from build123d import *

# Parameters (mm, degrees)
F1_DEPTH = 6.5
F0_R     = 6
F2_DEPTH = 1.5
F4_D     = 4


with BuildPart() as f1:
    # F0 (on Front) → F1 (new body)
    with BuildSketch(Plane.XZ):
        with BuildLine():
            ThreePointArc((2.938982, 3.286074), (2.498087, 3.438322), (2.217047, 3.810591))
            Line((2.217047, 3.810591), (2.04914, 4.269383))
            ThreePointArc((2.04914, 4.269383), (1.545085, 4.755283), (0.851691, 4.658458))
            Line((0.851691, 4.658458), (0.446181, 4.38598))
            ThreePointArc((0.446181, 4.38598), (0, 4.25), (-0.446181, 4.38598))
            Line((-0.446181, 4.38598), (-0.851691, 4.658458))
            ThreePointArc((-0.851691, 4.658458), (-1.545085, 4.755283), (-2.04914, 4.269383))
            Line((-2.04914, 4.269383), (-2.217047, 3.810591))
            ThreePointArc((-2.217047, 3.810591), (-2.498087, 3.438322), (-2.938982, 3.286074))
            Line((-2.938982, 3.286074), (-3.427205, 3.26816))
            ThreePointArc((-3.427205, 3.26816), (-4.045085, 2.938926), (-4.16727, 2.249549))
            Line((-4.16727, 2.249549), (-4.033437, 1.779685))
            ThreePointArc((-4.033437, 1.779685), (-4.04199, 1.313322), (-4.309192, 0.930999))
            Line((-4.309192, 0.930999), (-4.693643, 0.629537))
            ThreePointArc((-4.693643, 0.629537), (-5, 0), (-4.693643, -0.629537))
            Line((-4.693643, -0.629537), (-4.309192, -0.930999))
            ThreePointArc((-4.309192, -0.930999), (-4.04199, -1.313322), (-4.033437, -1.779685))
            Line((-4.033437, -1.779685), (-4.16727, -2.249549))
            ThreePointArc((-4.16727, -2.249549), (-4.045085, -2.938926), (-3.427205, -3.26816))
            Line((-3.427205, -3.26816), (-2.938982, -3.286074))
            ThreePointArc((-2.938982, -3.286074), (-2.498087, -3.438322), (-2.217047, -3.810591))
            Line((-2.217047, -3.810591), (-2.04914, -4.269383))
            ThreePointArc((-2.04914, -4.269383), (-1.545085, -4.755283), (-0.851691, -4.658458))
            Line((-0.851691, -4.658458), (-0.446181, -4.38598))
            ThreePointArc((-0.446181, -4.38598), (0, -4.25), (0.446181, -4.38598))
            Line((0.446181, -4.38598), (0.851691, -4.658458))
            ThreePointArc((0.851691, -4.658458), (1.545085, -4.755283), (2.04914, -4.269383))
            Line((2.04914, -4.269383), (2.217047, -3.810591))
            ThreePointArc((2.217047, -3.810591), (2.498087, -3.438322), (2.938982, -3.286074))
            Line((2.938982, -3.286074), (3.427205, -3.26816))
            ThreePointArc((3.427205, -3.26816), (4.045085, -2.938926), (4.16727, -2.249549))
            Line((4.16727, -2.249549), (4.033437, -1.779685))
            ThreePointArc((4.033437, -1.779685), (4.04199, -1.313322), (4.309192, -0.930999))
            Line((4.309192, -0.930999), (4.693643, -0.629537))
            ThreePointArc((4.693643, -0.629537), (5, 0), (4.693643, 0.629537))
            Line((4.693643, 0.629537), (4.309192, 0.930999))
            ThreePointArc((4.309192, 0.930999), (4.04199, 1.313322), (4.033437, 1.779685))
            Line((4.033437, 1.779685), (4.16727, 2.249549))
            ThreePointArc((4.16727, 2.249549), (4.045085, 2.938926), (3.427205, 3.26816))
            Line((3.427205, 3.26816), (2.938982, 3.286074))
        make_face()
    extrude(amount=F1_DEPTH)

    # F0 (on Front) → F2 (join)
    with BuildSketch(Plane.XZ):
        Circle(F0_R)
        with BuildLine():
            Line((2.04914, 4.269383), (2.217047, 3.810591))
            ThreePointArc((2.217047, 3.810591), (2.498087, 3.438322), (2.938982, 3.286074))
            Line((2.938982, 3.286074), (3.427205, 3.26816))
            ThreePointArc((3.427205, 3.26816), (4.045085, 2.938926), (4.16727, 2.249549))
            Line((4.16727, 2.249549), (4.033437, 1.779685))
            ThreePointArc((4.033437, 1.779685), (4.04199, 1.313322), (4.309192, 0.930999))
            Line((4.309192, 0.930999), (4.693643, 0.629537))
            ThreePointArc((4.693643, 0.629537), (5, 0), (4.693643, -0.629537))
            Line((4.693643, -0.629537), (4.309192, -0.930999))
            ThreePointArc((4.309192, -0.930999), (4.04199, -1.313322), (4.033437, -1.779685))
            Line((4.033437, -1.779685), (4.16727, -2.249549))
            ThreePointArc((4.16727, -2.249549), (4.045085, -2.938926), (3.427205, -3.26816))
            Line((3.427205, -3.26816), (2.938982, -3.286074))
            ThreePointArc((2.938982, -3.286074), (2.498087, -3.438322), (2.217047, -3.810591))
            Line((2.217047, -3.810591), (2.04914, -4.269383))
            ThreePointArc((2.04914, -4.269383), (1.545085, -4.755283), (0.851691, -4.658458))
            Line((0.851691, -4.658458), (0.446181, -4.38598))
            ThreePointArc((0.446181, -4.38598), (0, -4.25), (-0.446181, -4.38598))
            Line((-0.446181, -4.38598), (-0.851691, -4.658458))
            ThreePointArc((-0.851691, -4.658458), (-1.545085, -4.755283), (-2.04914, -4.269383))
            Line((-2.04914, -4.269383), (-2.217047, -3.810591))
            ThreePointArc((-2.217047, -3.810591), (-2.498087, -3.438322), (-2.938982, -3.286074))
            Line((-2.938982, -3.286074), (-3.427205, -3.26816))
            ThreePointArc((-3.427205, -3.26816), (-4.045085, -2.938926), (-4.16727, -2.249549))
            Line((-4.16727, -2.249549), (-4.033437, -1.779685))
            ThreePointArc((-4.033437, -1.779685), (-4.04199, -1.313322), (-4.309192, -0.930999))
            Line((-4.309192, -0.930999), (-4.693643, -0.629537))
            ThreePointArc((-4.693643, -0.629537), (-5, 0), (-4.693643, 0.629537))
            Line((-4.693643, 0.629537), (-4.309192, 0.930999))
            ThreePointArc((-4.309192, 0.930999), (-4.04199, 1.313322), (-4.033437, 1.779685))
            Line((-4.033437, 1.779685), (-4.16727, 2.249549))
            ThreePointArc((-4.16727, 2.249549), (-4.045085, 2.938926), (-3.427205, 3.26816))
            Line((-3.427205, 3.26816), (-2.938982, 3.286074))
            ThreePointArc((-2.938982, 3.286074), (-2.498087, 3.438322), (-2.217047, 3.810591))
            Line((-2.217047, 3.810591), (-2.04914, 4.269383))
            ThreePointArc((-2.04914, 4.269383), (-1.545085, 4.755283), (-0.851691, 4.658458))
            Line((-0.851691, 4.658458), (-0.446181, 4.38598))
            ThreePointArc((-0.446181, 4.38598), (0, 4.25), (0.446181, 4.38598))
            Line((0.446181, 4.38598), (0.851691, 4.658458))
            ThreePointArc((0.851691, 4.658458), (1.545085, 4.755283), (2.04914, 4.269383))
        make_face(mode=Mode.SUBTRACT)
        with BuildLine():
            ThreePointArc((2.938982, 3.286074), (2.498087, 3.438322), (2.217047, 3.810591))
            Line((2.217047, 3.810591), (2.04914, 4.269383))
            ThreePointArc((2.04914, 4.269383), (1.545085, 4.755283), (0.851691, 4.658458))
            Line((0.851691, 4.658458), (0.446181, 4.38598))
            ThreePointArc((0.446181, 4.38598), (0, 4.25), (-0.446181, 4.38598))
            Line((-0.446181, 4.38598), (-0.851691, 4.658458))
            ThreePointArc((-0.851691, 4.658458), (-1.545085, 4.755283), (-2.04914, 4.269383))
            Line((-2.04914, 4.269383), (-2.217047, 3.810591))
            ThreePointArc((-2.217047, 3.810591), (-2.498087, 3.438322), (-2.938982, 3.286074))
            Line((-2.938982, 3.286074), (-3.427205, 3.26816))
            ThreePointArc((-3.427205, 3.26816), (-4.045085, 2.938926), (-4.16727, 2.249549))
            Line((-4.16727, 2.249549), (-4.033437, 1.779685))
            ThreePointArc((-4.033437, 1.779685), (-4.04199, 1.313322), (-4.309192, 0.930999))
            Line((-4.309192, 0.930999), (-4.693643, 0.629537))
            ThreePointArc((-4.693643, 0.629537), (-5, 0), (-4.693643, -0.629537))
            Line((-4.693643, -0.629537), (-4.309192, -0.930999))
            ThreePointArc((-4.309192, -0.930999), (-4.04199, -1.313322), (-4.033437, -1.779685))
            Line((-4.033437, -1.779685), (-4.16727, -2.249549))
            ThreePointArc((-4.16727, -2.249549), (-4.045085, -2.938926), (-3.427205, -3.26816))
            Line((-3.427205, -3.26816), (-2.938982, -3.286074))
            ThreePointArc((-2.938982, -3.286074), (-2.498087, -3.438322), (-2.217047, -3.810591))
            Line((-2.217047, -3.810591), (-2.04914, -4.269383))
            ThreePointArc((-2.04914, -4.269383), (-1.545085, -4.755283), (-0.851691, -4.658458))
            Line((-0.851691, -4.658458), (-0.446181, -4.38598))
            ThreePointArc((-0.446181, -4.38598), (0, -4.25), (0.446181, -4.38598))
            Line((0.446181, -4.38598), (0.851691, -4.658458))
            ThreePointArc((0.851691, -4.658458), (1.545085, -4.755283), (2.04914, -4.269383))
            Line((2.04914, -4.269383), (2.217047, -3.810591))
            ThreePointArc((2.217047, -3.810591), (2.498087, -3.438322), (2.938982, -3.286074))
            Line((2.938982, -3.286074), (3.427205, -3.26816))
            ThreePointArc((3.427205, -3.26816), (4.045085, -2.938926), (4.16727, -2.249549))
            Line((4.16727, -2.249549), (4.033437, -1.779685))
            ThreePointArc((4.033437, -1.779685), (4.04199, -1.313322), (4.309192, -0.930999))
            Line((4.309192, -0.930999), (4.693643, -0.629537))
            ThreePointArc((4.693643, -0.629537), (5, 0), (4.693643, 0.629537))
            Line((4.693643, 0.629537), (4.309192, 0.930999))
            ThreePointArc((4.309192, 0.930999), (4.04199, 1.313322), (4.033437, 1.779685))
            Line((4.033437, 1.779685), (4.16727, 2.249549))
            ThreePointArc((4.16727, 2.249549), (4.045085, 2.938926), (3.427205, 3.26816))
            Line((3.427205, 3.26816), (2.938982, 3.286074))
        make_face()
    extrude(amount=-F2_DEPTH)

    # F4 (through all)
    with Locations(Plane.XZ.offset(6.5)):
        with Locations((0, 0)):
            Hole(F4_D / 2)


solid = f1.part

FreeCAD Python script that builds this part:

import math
import FreeCAD as App
import Part
import Sketcher
from FreeCAD import Vector

doc = App.newDocument("Part")
params = doc.addObject("Spreadsheet::Sheet", "Params")
for row, (alias, value) in enumerate([
    ("sketch1_radius", "0.799999 mm"),
    ("sketch1_radius2", "0.8 mm"),
    ("sketch1_radius3", "0.799999 mm"),
    ("sketch1_radius4", "0.800001 mm"),
    ("sketch1_radius5", "0.8 mm"),
    ("pad1_length", "6.5 mm"),
    ("sketch2_diameter", "12 mm"),
    ("pad2_length", "1.5 mm"),
    ("sketch3_diameter", "4 mm"),
    ("hole_diameter", "4 mm"),
], start=1):
    params.set(f"A{row}", alias)
    params.set(f"B{row}", "=" + value)
    params.setAlias(f"B{row}", alias)

body = doc.addObject("PartDesign::Body", "Body")

sketch1 = doc.addObject("Sketcher::SketchObject", "Sketch")
body.addObject(sketch1)
sketch1.AttachmentSupport = (doc.XZ_Plane, [""])
sketch1.MapMode = "FlatFace"
sketch1.addGeometry(Part.ArcOfCircle(Part.Circle(Vector(2.968313, 4.085532, 0), Vector(0, 0, 1), 0.799996), math.radians(-159.898885), math.radians(-92.101169)), False)
sketch1.addGeometry(Part.LineSegment(Vector(2.217047, 3.810591, 0), Vector(2.04914, 4.269383, 0)), False)
sketch1.addGeometry(Part.ArcOfCircle(Part.Circle(Vector(1.297871, 3.994438, 0), Vector(0, 0, 1), 0.799999), math.radians(20.101296), math.radians(123.898684)), False)
sketch1.addGeometry(Part.LineSegment(Vector(0.851691, 4.658458, 0), Vector(0.446181, 4.38598, 0)), False)
sketch1.addGeometry(Part.ArcOfCircle(Part.Circle(Vector(0, 5.05, 0), Vector(0, 0, 1), 0.8), math.radians(-123.89869), math.radians(-56.10131)), False)
sketch1.addGeometry(Part.LineSegment(Vector(-0.446181, 4.38598, 0), Vector(-0.851691, 4.658458, 0)), False)
sketch1.addGeometry(Part.ArcOfCircle(Part.Circle(Vector(-1.297871, 3.994438, 0), Vector(0, 0, 1), 0.799999), math.radians(56.101316), math.radians(159.898704)), False)
sketch1.addGeometry(Part.LineSegment(Vector(-2.04914, 4.269383, 0), Vector(-2.217047, 3.810591, 0)), False)
sketch1.addGeometry(Part.ArcOfCircle(Part.Circle(Vector(-2.968313, 4.085532, 0), Vector(0, 0, 1), 0.799996), math.radians(-87.898831), math.radians(-20.101115)), False)
sketch1.addGeometry(Part.LineSegment(Vector(-2.938982, 3.286074, 0), Vector(-3.427205, 3.26816, 0)), False)
sketch1.addGeometry(Part.ArcOfCircle(Part.Circle(Vector(-3.397871, 2.468697, 0), Vector(0, 0, 1), 0.800001), math.radians(92.101363), math.radians(195.898579)), False)
sketch1.addGeometry(Part.LineSegment(Vector(-4.16727, 2.249549, 0), Vector(-4.033437, 1.779685, 0)), False)
sketch1.addGeometry(Part.ArcOfCircle(Part.Circle(Vector(-4.802835, 1.560536, 0), Vector(0, 0, 1), 0.8), math.radians(-51.89868), math.radians(15.898655)), False)
sketch1.addGeometry(Part.LineSegment(Vector(-4.309192, 0.930999, 0), Vector(-4.693643, 0.629537, 0)), False)
sketch1.addGeometry(Part.ArcOfCircle(Part.Circle(Vector(-4.2, 0, 0), Vector(0, 0, 1), 0.8), math.radians(128.101315), math.radians(231.898685)), False)
sketch1.addGeometry(Part.LineSegment(Vector(-4.693643, -0.629537, 0), Vector(-4.309192, -0.930999, 0)), False)
sketch1.addGeometry(Part.ArcOfCircle(Part.Circle(Vector(-4.802835, -1.560536, 0), Vector(0, 0, 1), 0.8), math.radians(-15.898655), math.radians(51.89868)), False)
sketch1.addGeometry(Part.LineSegment(Vector(-4.033437, -1.779685, 0), Vector(-4.16727, -2.249549, 0)), False)
sketch1.addGeometry(Part.ArcOfCircle(Part.Circle(Vector(-3.397871, -2.468697, 0), Vector(0, 0, 1), 0.800001), math.radians(164.101421), math.radians(267.898637)), False)
sketch1.addGeometry(Part.LineSegment(Vector(-3.427205, -3.26816, 0), Vector(-2.938982, -3.286074, 0)), False)
sketch1.addGeometry(Part.ArcOfCircle(Part.Circle(Vector(-2.968313, -4.085532, 0), Vector(0, 0, 1), 0.799996), math.radians(20.101115), math.radians(87.898831)), False)
sketch1.addGeometry(Part.LineSegment(Vector(-2.217047, -3.810591, 0), Vector(-2.04914, -4.269383, 0)), False)
sketch1.addGeometry(Part.ArcOfCircle(Part.Circle(Vector(-1.297871, -3.994438, 0), Vector(0, 0, 1), 0.799999), math.radians(-159.898704), math.radians(-56.101316)), False)
sketch1.addGeometry(Part.LineSegment(Vector(-0.851691, -4.658458, 0), Vector(-0.446181, -4.38598, 0)), False)
sketch1.addGeometry(Part.ArcOfCircle(Part.Circle(Vector(0, -5.05, 0), Vector(0, 0, 1), 0.8), math.radians(56.10131), math.radians(123.89869)), False)
sketch1.addGeometry(Part.LineSegment(Vector(0.446181, -4.38598, 0), Vector(0.851691, -4.658458, 0)), False)
sketch1.addGeometry(Part.ArcOfCircle(Part.Circle(Vector(1.297871, -3.994438, 0), Vector(0, 0, 1), 0.799999), math.radians(-123.898684), math.radians(-20.101296)), False)
sketch1.addGeometry(Part.LineSegment(Vector(2.04914, -4.269383, 0), Vector(2.217047, -3.810591, 0)), False)
sketch1.addGeometry(Part.ArcOfCircle(Part.Circle(Vector(2.968313, -4.085532, 0), Vector(0, 0, 1), 0.799996), math.radians(92.101169), math.radians(159.898885)), False)
sketch1.addGeometry(Part.LineSegment(Vector(2.938982, -3.286074, 0), Vector(3.427205, -3.26816, 0)), False)
sketch1.addGeometry(Part.ArcOfCircle(Part.Circle(Vector(3.397871, -2.468697, 0), Vector(0, 0, 1), 0.800001), math.radians(-87.898637), math.radians(15.898579)), False)
sketch1.addGeometry(Part.LineSegment(Vector(4.16727, -2.249549, 0), Vector(4.033437, -1.779685, 0)), False)
sketch1.addGeometry(Part.ArcOfCircle(Part.Circle(Vector(4.802835, -1.560536, 0), Vector(0, 0, 1), 0.8), math.radians(128.10132), math.radians(195.898655)), False)
sketch1.addGeometry(Part.LineSegment(Vector(4.309192, -0.930999, 0), Vector(4.693643, -0.629537, 0)), False)
sketch1.addGeometry(Part.ArcOfCircle(Part.Circle(Vector(4.2, 0, 0), Vector(0, 0, 1), 0.8), math.radians(-51.898685), math.radians(51.898685)), False)
sketch1.addGeometry(Part.LineSegment(Vector(4.693643, 0.629537, 0), Vector(4.309192, 0.930999, 0)), False)
sketch1.addGeometry(Part.ArcOfCircle(Part.Circle(Vector(4.802835, 1.560536, 0), Vector(0, 0, 1), 0.8), math.radians(164.101345), math.radians(231.89868)), False)
sketch1.addGeometry(Part.LineSegment(Vector(4.033437, 1.779685, 0), Vector(4.16727, 2.249549, 0)), False)
sketch1.addGeometry(Part.ArcOfCircle(Part.Circle(Vector(3.397871, 2.468697, 0), Vector(0, 0, 1), 0.800001), math.radians(-15.898579), math.radians(87.898637)), False)
sketch1.addGeometry(Part.LineSegment(Vector(3.427205, 3.26816, 0), Vector(2.938982, 3.286074, 0)), False)
sketch1.addConstraint(Sketcher.Constraint("Coincident", 0, 1, 1, 1))
sketch1.addConstraint(Sketcher.Constraint("Coincident", 1, 2, 2, 1))
sketch1.addConstraint(Sketcher.Constraint("Coincident", 2, 2, 3, 1))
sketch1.addConstraint(Sketcher.Constraint("Coincident", 3, 2, 4, 2))
sketch1.addConstraint(Sketcher.Constraint("Coincident", 4, 1, 5, 1))
sketch1.addConstraint(Sketcher.Constraint("Coincident", 5, 2, 6, 1))
sketch1.addConstraint(Sketcher.Constraint("Coincident", 6, 2, 7, 1))
sketch1.addConstraint(Sketcher.Constraint("Coincident", 7, 2, 8, 2))
sketch1.addConstraint(Sketcher.Constraint("Coincident", 8, 1, 9, 1))
sketch1.addConstraint(Sketcher.Constraint("Coincident", 9, 2, 10, 1))
sketch1.addConstraint(Sketcher.Constraint("Coincident", 10, 2, 11, 1))
sketch1.addConstraint(Sketcher.Constraint("Coincident", 11, 2, 12, 2))
sketch1.addConstraint(Sketcher.Constraint("Coincident", 12, 1, 13, 1))
sketch1.addConstraint(Sketcher.Constraint("Coincident", 13, 2, 14, 1))
sketch1.addConstraint(Sketcher.Constraint("Coincident", 14, 2, 15, 1))
sketch1.addConstraint(Sketcher.Constraint("Coincident", 15, 2, 16, 2))
sketch1.addConstraint(Sketcher.Constraint("Coincident", 16, 1, 17, 1))
sketch1.addConstraint(Sketcher.Constraint("Coincident", 17, 2, 18, 1))
sketch1.addConstraint(Sketcher.Constraint("Coincident", 18, 2, 19, 1))
sketch1.addConstraint(Sketcher.Constraint("Coincident", 19, 2, 20, 2))
sketch1.addConstraint(Sketcher.Constraint("Coincident", 20, 1, 21, 1))
sketch1.addConstraint(Sketcher.Constraint("Coincident", 21, 2, 22, 1))
sketch1.addConstraint(Sketcher.Constraint("Coincident", 22, 2, 23, 1))
sketch1.addConstraint(Sketcher.Constraint("Coincident", 23, 2, 24, 2))
sketch1.addConstraint(Sketcher.Constraint("Coincident", 24, 1, 25, 1))
sketch1.addConstraint(Sketcher.Constraint("Coincident", 25, 2, 26, 1))
sketch1.addConstraint(Sketcher.Constraint("Coincident", 26, 2, 27, 1))
sketch1.addConstraint(Sketcher.Constraint("Coincident", 27, 2, 28, 2))
sketch1.addConstraint(Sketcher.Constraint("Coincident", 28, 1, 29, 1))
sketch1.addConstraint(Sketcher.Constraint("Coincident", 29, 2, 30, 1))
sketch1.addConstraint(Sketcher.Constraint("Coincident", 30, 2, 31, 1))
sketch1.addConstraint(Sketcher.Constraint("Coincident", 31, 2, 32, 2))
sketch1.addConstraint(Sketcher.Constraint("Coincident", 32, 1, 33, 1))
sketch1.addConstraint(Sketcher.Constraint("Coincident", 33, 2, 34, 1))
sketch1.addConstraint(Sketcher.Constraint("Coincident", 34, 2, 35, 1))
sketch1.addConstraint(Sketcher.Constraint("Coincident", 35, 2, 36, 2))
sketch1.addConstraint(Sketcher.Constraint("Coincident", 36, 1, 37, 1))
sketch1.addConstraint(Sketcher.Constraint("Coincident", 37, 2, 38, 1))
sketch1.addConstraint(Sketcher.Constraint("Coincident", 38, 2, 39, 1))
sketch1.addConstraint(Sketcher.Constraint("Coincident", 39, 2, 0, 2))
sketch1.addConstraint(Sketcher.Constraint("PointOnObject", 4, 3, -2))
sketch1.addConstraint(Sketcher.Constraint("PointOnObject", 14, 3, -1))
sketch1.addConstraint(Sketcher.Constraint("PointOnObject", 24, 3, -2))
sketch1.addConstraint(Sketcher.Constraint("PointOnObject", 34, 3, -1))
sketch1.addConstraint(Sketcher.Constraint("Radius", 2, 0.799999))
sketch1.addConstraint(Sketcher.Constraint("Radius", 4, 0.8))
sketch1.addConstraint(Sketcher.Constraint("Radius", 6, 0.799999))
sketch1.addConstraint(Sketcher.Constraint("Radius", 10, 0.800001))
sketch1.addConstraint(Sketcher.Constraint("Radius", 12, 0.8))
sketch1.addConstraint(Sketcher.Constraint("Radius", 14, 0.8))
sketch1.addConstraint(Sketcher.Constraint("Radius", 16, 0.8))
sketch1.addConstraint(Sketcher.Constraint("Radius", 18, 0.800001))
sketch1.addConstraint(Sketcher.Constraint("Radius", 22, 0.799999))
sketch1.addConstraint(Sketcher.Constraint("Radius", 24, 0.8))
sketch1.addConstraint(Sketcher.Constraint("Radius", 26, 0.799999))
sketch1.addConstraint(Sketcher.Constraint("Radius", 30, 0.800001))
sketch1.addConstraint(Sketcher.Constraint("Radius", 32, 0.8))
sketch1.addConstraint(Sketcher.Constraint("Radius", 34, 0.8))
sketch1.addConstraint(Sketcher.Constraint("Radius", 36, 0.8))
sketch1.addConstraint(Sketcher.Constraint("Radius", 38, 0.800001))
sketch1.addConstraint(Sketcher.Constraint("DistanceX", 14, 3, -1, 1, 4.2))
sketch1.addConstraint(Sketcher.Constraint("DistanceX", -1, 1, 34, 3, 4.2))
sketch1.addConstraint(Sketcher.Constraint("DistanceX", 10, 3, 6, 3, 2.1))
sketch1.addConstraint(Sketcher.Constraint("DistanceX", 18, 3, 22, 3, 2.1))
sketch1.addConstraint(Sketcher.Constraint("DistanceX", 26, 3, 30, 3, 2.1))
sketch1.addConstraint(Sketcher.Constraint("DistanceX", 2, 3, 38, 3, 2.1))
sketch1.addConstraint(Sketcher.Constraint("DistanceY", -1, 1, 4, 3, 5.05))
sketch1.addConstraint(Sketcher.Constraint("DistanceY", 24, 3, -1, 1, 5.05))
sketch1.addConstraint(Sketcher.Constraint("DistanceY", -1, 1, 12, 1, 0.930999))
sketch1.addConstraint(Sketcher.Constraint("DistanceY", 15, 2, -1, 1, 0.930999))
sketch1.addConstraint(Sketcher.Constraint("DistanceY", 32, 1, -1, 1, 0.930999))
sketch1.addConstraint(Sketcher.Constraint("DistanceY", -1, 1, 35, 2, 0.930999))
sketch1.addConstraint(Sketcher.Constraint("Radius", 0, 0.799996))
sketch1.addConstraint(Sketcher.Constraint("Radius", 8, 0.799996))
sketch1.addConstraint(Sketcher.Constraint("Radius", 20, 0.799996))
sketch1.addConstraint(Sketcher.Constraint("Radius", 28, 0.799996))
sketch1.addConstraint(Sketcher.Constraint("DistanceY", 13, 2, 12, 3, 0.930999))
sketch1.addConstraint(Sketcher.Constraint("DistanceY", 16, 3, 14, 2, 0.930999))
sketch1.addConstraint(Sketcher.Constraint("DistanceY", 32, 3, 33, 2, 0.930999))
sketch1.addConstraint(Sketcher.Constraint("DistanceY", 34, 2, 36, 3, 0.930999))
sketch1.addConstraint(Sketcher.Constraint("DistanceX", 10, 2, 10, 3, 0.769399))
sketch1.addConstraint(Sketcher.Constraint("DistanceX", 12, 3, 11, 2, 0.769398))
sketch1.addConstraint(Sketcher.Constraint("DistanceY", 12, 1, 10, 3, 1.537698))
sketch1.addConstraint(Sketcher.Constraint("DistanceY", 18, 3, 15, 2, 1.537698))
sketch1.addConstraint(Sketcher.Constraint("DistanceX", 16, 3, 16, 1, 0.769398))
sketch1.addConstraint(Sketcher.Constraint("DistanceX", 17, 2, 18, 3, 0.769399))
sketch1.addConstraint(Sketcher.Constraint("DistanceX", 30, 3, 30, 2, 0.769399))
sketch1.addConstraint(Sketcher.Constraint("DistanceX", 31, 2, 32, 3, 0.769398))
sketch1.addConstraint(Sketcher.Constraint("DistanceY", 30, 3, 32, 1, 1.537698))
sketch1.addConstraint(Sketcher.Constraint("DistanceY", 35, 2, 38, 3, 1.537698))
sketch1.addConstraint(Sketcher.Constraint("DistanceX", 36, 1, 36, 3, 0.769398))
sketch1.addConstraint(Sketcher.Constraint("DistanceX", 38, 3, 37, 2, 0.769399))
sketch1.addConstraint(Sketcher.Constraint("Distance", 1, 0.488552))
sketch1.addConstraint(Sketcher.Constraint("Distance", 3, 0.488552))
sketch1.addConstraint(Sketcher.Constraint("Distance", 5, 0.488552))
sketch1.addConstraint(Sketcher.Constraint("Distance", 7, 0.488552))
sketch1.addConstraint(Sketcher.Constraint("Distance", 9, 0.488552))
sketch1.addConstraint(Sketcher.Constraint("Distance", 13, 0.488551))
sketch1.addConstraint(Sketcher.Constraint("Distance", 15, 0.488551))
sketch1.addConstraint(Sketcher.Constraint("Distance", 19, 0.488552))
sketch1.addConstraint(Sketcher.Constraint("Distance", 21, 0.488552))
sketch1.addConstraint(Sketcher.Constraint("Distance", 23, 0.488552))
sketch1.addConstraint(Sketcher.Constraint("Distance", 25, 0.488552))
sketch1.addConstraint(Sketcher.Constraint("Distance", 27, 0.488552))
sketch1.addConstraint(Sketcher.Constraint("Distance", 29, 0.488552))
sketch1.addConstraint(Sketcher.Constraint("Distance", 33, 0.488551))
sketch1.addConstraint(Sketcher.Constraint("Distance", 35, 0.488551))
sketch1.addConstraint(Sketcher.Constraint("Distance", 39, 0.488552))
sketch1.addConstraint(Sketcher.Constraint("DistanceY", -1, 1, 0, 3, 4.085532))
sketch1.addConstraint(Sketcher.Constraint("DistanceX", -1, 1, 2, 3, 1.297871))
sketch1.addConstraint(Sketcher.Constraint("DistanceY", -1, 1, 2, 3, 3.994438))
sketch1.addConstraint(Sketcher.Constraint("DistanceX", 6, 3, -1, 1, 1.297871))
sketch1.addConstraint(Sketcher.Constraint("DistanceY", -1, 1, 6, 3, 3.994438))
sketch1.addConstraint(Sketcher.Constraint("DistanceY", -1, 1, 8, 3, 4.085532))
sketch1.addConstraint(Sketcher.Constraint("DistanceX", 18, 3, -1, 1, 3.397871))
sketch1.addConstraint(Sketcher.Constraint("DistanceY", 20, 3, -1, 1, 4.085532))
sketch1.addConstraint(Sketcher.Constraint("DistanceY", 22, 3, -1, 1, 3.994438))
sketch1.addConstraint(Sketcher.Constraint("DistanceX", -1, 1, 26, 3, 1.297871))
sketch1.addConstraint(Sketcher.Constraint("DistanceY", 26, 3, -1, 1, 3.994438))
sketch1.addConstraint(Sketcher.Constraint("DistanceY", 28, 3, -1, 1, 4.085532))
sketch1.addConstraint(Sketcher.Constraint("DistanceY", -1, 1, 0, 1, 3.810591))
sketch1.addConstraint(Sketcher.Constraint("DistanceX", -1, 1, 1, 2, 2.04914))
sketch1.addConstraint(Sketcher.Constraint("DistanceX", -1, 1, 2, 2, 0.851691))
sketch1.addConstraint(Sketcher.Constraint("DistanceX", 4, 1, -1, 1, 0.446181))
sketch1.addConstraint(Sketcher.Constraint("DistanceX", 6, 2, -1, 1, 2.04914))
sketch1.addConstraint(Sketcher.Constraint("DistanceY", -1, 1, 7, 2, 3.810591))
sketch1.addConstraint(Sketcher.Constraint("DistanceY", -1, 1, 9, 2, 3.26816))
sketch1.addConstraint(Sketcher.Constraint("DistanceY", 18, 2, -1, 1, 3.26816))
sketch1.addConstraint(Sketcher.Constraint("DistanceY", 20, 1, -1, 1, 3.810591))
sketch1.addConstraint(Sketcher.Constraint("DistanceX", 21, 2, -1, 1, 2.04914))
sketch1.addConstraint(Sketcher.Constraint("DistanceX", 22, 2, -1, 1, 0.851691))
sketch1.addConstraint(Sketcher.Constraint("DistanceX", -1, 1, 24, 1, 0.446181))
sketch1.addConstraint(Sketcher.Constraint("DistanceX", -1, 1, 26, 2, 2.04914))
sketch1.addConstraint(Sketcher.Constraint("DistanceY", 27, 2, -1, 1, 3.810591))
sketch1.addConstraint(Sketcher.Constraint("DistanceY", 29, 2, -1, 1, 3.26816))
sketch1.addConstraint(Sketcher.Constraint("DistanceY", -1, 1, 38, 2, 3.26816))
sketch1.addConstraint(Sketcher.Constraint("DistanceY", 12, 3, 10, 3, 0.908162))
sketch1.addConstraint(Sketcher.Constraint("DistanceY", 16, 3, 12, 3, 3.121071))
sketch1.addConstraint(Sketcher.Constraint("DistanceY", 30, 3, 32, 3, 0.908162))
sketch1.addConstraint(Sketcher.Constraint("DistanceY", 32, 3, 36, 3, 3.121071))
sketch1.setExpression("Constraints[44]", "Params.sketch1_radius")
sketch1.setExpression("Constraints[45]", "Params.sketch1_radius2")
sketch1.setExpression("Constraints[46]", "Params.sketch1_radius3")
sketch1.setExpression("Constraints[47]", "Params.sketch1_radius4")
sketch1.setExpression("Constraints[48]", "Params.sketch1_radius5")
pad1 = doc.addObject("PartDesign::Pad", "Pad")
body.addObject(pad1)
pad1.Profile = sketch1
pad1.setExpression("Length", "Params.pad1_length")

sketch2 = doc.addObject("Sketcher::SketchObject", "Sketch001")
body.addObject(sketch2)
sketch2.AttachmentSupport = (doc.XZ_Plane, [""])
sketch2.MapMode = "FlatFace"
sketch2.addGeometry(Part.Circle(Vector(0, 0, 0), Vector(0, 0, 1), 6), False)
sketch2.addConstraint(Sketcher.Constraint("Coincident", 0, 3, -1, 1))
sketch2.addConstraint(Sketcher.Constraint("Diameter", 0, 12.0))
sketch2.setExpression("Constraints[1]", "Params.sketch2_diameter")
pad2 = doc.addObject("PartDesign::Pad", "Pad001")
body.addObject(pad2)
pad2.Profile = sketch2
pad2.setExpression("Length", "Params.pad2_length")
pad2.Reversed = True

sketch3 = doc.addObject("Sketcher::SketchObject", "Sketch002")
body.addObject(sketch3)
sketch3.AttachmentSupport = (doc.XZ_Plane, [""])
sketch3.MapMode = "FlatFace"
sketch3.AttachmentOffset = App.Placement(Vector(0, 0, 6.5), App.Rotation())
sketch3.addGeometry(Part.Circle(Vector(0, 0, 0), Vector(0, 0, 1), 2), False)
sketch3.addConstraint(Sketcher.Constraint("Coincident", 0, 3, -1, 1))
sketch3.addConstraint(Sketcher.Constraint("Diameter", 0, 4.0))
sketch3.setExpression("Constraints[1]", "Params.sketch3_diameter")
doc.recompute()
hole = doc.addObject("PartDesign::Hole", "Hole")
body.addObject(hole)
hole.Profile = sketch3
hole.ThreadType = "None"
hole.setExpression("Diameter", "Params.hole_diameter")
hole.DepthType = "ThroughAll"

doc.recompute()
